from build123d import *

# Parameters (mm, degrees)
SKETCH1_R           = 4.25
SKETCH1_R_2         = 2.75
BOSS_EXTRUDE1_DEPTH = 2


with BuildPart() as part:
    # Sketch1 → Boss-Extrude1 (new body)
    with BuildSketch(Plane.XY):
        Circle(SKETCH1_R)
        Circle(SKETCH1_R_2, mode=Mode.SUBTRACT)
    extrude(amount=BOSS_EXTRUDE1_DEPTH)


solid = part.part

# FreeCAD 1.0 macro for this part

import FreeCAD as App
import Part
import Sketcher
Q = App.Units.Quantity

doc = App.newDocument("Part")
body = doc.addObject("PartDesign::Body", "Body")

# Sketch on XY plane
sketch1 = body.newObject("Sketcher::SketchObject", "Sketch")
sketch1.AttachmentSupport = (doc.getObject("XY_Plane"), [""])
sketch1.MapMode = "FlatFace"
sketch1.addGeometry(Part.Circle(App.Vector(0, 0, 0), App.Vector(0, 0, 1), 4.25), False)
sketch1.addGeometry(Part.Circle(App.Vector(0, 0, 0), App.Vector(0, 0, 1), 2.75), False)
sketch1.addConstraint(Sketcher.Constraint("Coincident", 0, 3, -1, 1))
sketch1.addConstraint(Sketcher.Constraint("Coincident", 1, 3, -1, 1))
sketch1.addConstraint(Sketcher.Constraint("Diameter", 0, Q("8.5 mm")))
sketch1.addConstraint(Sketcher.Constraint("Diameter", 1, Q("5.5 mm")))
pad1 = body.newObject("PartDesign::Pad", "Pad")
pad1.Profile = sketch1
pad1.Length = 2

doc.recompute()
